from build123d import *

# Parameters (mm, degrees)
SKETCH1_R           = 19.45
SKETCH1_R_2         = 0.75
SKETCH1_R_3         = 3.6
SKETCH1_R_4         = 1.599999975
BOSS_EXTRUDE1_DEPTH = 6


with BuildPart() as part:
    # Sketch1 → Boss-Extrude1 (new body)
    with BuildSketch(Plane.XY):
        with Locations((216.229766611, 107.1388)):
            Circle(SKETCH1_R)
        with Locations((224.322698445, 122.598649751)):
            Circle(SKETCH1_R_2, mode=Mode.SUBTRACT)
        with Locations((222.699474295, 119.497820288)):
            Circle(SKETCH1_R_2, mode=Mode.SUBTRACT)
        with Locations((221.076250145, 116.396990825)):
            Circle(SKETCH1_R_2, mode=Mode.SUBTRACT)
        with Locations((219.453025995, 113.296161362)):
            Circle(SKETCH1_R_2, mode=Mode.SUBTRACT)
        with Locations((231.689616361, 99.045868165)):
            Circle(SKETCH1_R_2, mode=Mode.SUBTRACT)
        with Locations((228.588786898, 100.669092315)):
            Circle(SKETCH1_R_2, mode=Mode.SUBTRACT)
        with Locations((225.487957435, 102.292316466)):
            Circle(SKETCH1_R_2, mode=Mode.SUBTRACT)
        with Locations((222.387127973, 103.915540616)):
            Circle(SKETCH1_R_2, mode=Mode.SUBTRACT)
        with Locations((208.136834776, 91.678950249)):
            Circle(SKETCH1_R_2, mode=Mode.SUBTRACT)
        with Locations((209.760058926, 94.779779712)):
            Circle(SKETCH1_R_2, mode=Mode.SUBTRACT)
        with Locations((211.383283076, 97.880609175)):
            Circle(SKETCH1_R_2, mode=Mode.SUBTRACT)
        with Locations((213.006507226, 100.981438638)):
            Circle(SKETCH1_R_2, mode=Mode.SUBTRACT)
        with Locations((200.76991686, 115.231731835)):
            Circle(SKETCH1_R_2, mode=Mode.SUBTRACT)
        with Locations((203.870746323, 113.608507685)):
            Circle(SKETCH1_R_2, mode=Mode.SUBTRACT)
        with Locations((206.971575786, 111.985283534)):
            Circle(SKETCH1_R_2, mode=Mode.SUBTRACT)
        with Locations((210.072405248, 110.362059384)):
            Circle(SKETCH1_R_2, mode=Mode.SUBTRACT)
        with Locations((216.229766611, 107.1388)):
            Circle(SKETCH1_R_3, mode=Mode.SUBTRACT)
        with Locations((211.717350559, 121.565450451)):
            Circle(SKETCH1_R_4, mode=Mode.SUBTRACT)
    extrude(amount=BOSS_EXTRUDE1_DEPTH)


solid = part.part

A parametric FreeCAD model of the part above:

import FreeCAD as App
import Part
import Sketcher
Q = App.Units.Quantity

doc = App.newDocument("Part")
body = doc.addObject("PartDesign::Body", "Body")

# Sketch on XY plane
sketch1 = doc.addObject("Sketcher::SketchObject", "Sketch")
body.addObject(sketch1)
sketch1.AttachmentSupport = (doc.XY_Plane, [""])
sketch1.MapMode = "FlatFace"
sketch1.addGeometry([
    Part.Circle(App.Vector(216.2, 107.1, 0), App.Vector(0, 0, 1), 19.4),  # 0
    Part.Circle(App.Vector(208.1, 91.7, 0), App.Vector(0, 0, 1), 0.8),  # 1
    Part.Circle(App.Vector(209.8, 94.8, 0), App.Vector(0, 0, 1), 0.8),  # 2
    Part.Circle(App.Vector(211.4, 97.9, 0), App.Vector(0, 0, 1), 0.8),  # 3
    Part.Circle(App.Vector(213, 101, 0), App.Vector(0, 0, 1), 0.8),  # 4
    Part.Circle(App.Vector(222.4, 103.9, 0), App.Vector(0, 0, 1), 0.8),  # 5
    Part.Circle(App.Vector(225.5, 102.3, 0), App.Vector(0, 0, 1), 0.8),  # 6
    Part.Circle(App.Vector(228.6, 100.7, 0), App.Vector(0, 0, 1), 0.8),  # 7
    Part.Circle(App.Vector(231.7, 99, 0), App.Vector(0, 0, 1), 0.8),  # 8
    Part.Circle(App.Vector(200.8, 115.2, 0), App.Vector(0, 0, 1), 0.8),  # 9
    Part.Circle(App.Vector(203.9, 113.6, 0), App.Vector(0, 0, 1), 0.8),  # 10
    Part.Circle(App.Vector(207, 112, 0), App.Vector(0, 0, 1), 0.8),  # 11
    Part.Circle(App.Vector(210.1, 110.4, 0), App.Vector(0, 0, 1), 0.8),  # 12
    Part.Circle(App.Vector(211.7, 121.6, 0), App.Vector(0, 0, 1), 1.6),  # 13
    Part.Circle(App.Vector(216.2, 107.1, 0), App.Vector(0, 0, 1), 3.6),  # 14
    Part.Circle(App.Vector(219.5, 113.3, 0), App.Vector(0, 0, 1), 0.8),  # 15
    Part.Circle(App.Vector(221.1, 116.4, 0), App.Vector(0, 0, 1), 0.8),  # 16
    Part.Circle(App.Vector(222.7, 119.5, 0), App.Vector(0, 0, 1), 0.8),  # 17
    Part.Circle(App.Vector(224.3, 122.6, 0), App.Vector(0, 0, 1), 0.8),  # 18
], False)
sketch1.addConstraint([
    Sketcher.Constraint("Coincident", 14, 3, 0, 3),
    Sketcher.Constraint("Equal", 1, 2),
    Sketcher.Constraint("Equal", 2, 3),
    Sketcher.Constraint("Equal", 3, 4),
    Sketcher.Constraint("Equal", 4, 5),
    Sketcher.Constraint("Equal", 5, 6),
    Sketcher.Constraint("Equal", 6, 7),
    Sketcher.Constraint("Equal", 7, 8),
    Sketcher.Constraint("Equal", 8, 9),
    Sketcher.Constraint("Equal", 9, 10),
    Sketcher.Constraint("Equal", 10, 11),
    Sketcher.Constraint("Equal", 11, 12),
    Sketcher.Constraint("Equal", 12, 15),
    Sketcher.Constraint("Equal", 15, 16),
    Sketcher.Constraint("Equal", 16, 17),
    Sketcher.Constraint("Equal", 17, 18),
    Sketcher.Constraint("Diameter", 0, Q("38.9 mm")),
    Sketcher.Constraint("Diameter", 1, Q("1.5 mm")),
    Sketcher.Constraint("Diameter", 13, Q("3.2 mm")),
    Sketcher.Constraint("Diameter", 14, Q("7.2 mm")),
    Sketcher.Constraint("DistanceY", -1, 1, 0, 3, Q("107.1388 mm")),
    Sketcher.Constraint("DistanceX", -1, 1, 18, 3, Q("224.322698 mm")),
    Sketcher.Constraint("DistanceY", 4, 3, 5, 3, Q("2.934102 mm")),
    Sketcher.Constraint("DistanceX", 2, 3, 6, 3, Q("15.727899 mm")),
    Sketcher.Constraint("DistanceY", 3, 3, 10, 3, Q("15.727899 mm")),
    Sketcher.Constraint("DistanceX", 12, 3, 4, 3, Q("2.934102 mm")),
    Sketcher.Constraint("DistanceX", 15, 3, 5, 3, Q("2.934102 mm")),
    Sketcher.Constraint("DistanceY", 12, 3, 15, 3, Q("2.934102 mm")),
    Sketcher.Constraint("DistanceX", 13, 3, 16, 3, Q("9.3589 mm")),
    Sketcher.Constraint("DistanceY", 13, 3, 18, 3, Q("1.033199 mm")),
    Sketcher.Constraint("DistanceY", -1, 1, 1, 3, Q("91.67895 mm")),
    Sketcher.Constraint("DistanceX", -1, 1, 2, 3, Q("209.760059 mm")),
    Sketcher.Constraint("DistanceY", -1, 1, 2, 3, Q("94.77978 mm")),
    Sketcher.Constraint("DistanceY", -1, 1, 3, 3, Q("97.880609 mm")),
    Sketcher.Constraint("DistanceY", -1, 1, 4, 3, Q("100.981439 mm")),
    Sketcher.Constraint("DistanceY", -1, 1, 8, 3, Q("99.045868 mm")),
    Sketcher.Constraint("DistanceY", -1, 1, 9, 3, Q("115.231732 mm")),
    Sketcher.Constraint("DistanceY", -1, 1, 12, 3, Q("110.362059 mm")),
    Sketcher.Constraint("DistanceX", -1, 1, 13, 3, Q("211.717351 mm")),
    Sketcher.Constraint("DistanceY", -1, 1, 13, 3, Q("121.56545 mm")),
    Sketcher.Constraint("DistanceY", -1, 1, 16, 3, Q("116.396991 mm")),
    Sketcher.Constraint("DistanceY", -1, 1, 17, 3, Q("119.49782 mm")),
    Sketcher.Constraint("DistanceX", 1, 3, 0, 3, Q("8.092932 mm")),
    Sketcher.Constraint("DistanceX", 1, 3, 3, 3, Q("3.246448 mm")),
    Sketcher.Constraint("DistanceX", 4, 3, 0, 3, Q("3.223259 mm")),
    Sketcher.Constraint("DistanceX", 2, 3, 4, 3, Q("3.246448 mm")),
    Sketcher.Constraint("DistanceX", 0, 3, 5, 3, Q("6.157361 mm")),
    Sketcher.Constraint("DistanceX", 6, 3, 7, 3, Q("3.100829 mm")),
    Sketcher.Constraint("DistanceY", 7, 3, 5, 3, Q("3.246448 mm")),
    Sketcher.Constraint("DistanceX", 7, 3, 8, 3, Q("3.100829 mm")),
    Sketcher.Constraint("DistanceY", 8, 3, 6, 3, Q("3.246448 mm")),
    Sketcher.Constraint("DistanceX", 9, 3, 0, 3, Q("15.45985 mm")),
    Sketcher.Constraint("DistanceX", 9, 3, 10, 3, Q("3.100829 mm")),
    Sketcher.Constraint("DistanceX", 10, 3, 11, 3, Q("3.100829 mm")),
    Sketcher.Constraint("DistanceY", 11, 3, 9, 3, Q("3.246448 mm")),
    Sketcher.Constraint("DistanceX", 15, 3, 17, 3, Q("3.246448 mm")),
])
pad1 = doc.addObject("PartDesign::Pad", "Pad")
body.addObject(pad1)
pad1.Profile = sketch1
pad1.Length = 6

doc.recompute()
